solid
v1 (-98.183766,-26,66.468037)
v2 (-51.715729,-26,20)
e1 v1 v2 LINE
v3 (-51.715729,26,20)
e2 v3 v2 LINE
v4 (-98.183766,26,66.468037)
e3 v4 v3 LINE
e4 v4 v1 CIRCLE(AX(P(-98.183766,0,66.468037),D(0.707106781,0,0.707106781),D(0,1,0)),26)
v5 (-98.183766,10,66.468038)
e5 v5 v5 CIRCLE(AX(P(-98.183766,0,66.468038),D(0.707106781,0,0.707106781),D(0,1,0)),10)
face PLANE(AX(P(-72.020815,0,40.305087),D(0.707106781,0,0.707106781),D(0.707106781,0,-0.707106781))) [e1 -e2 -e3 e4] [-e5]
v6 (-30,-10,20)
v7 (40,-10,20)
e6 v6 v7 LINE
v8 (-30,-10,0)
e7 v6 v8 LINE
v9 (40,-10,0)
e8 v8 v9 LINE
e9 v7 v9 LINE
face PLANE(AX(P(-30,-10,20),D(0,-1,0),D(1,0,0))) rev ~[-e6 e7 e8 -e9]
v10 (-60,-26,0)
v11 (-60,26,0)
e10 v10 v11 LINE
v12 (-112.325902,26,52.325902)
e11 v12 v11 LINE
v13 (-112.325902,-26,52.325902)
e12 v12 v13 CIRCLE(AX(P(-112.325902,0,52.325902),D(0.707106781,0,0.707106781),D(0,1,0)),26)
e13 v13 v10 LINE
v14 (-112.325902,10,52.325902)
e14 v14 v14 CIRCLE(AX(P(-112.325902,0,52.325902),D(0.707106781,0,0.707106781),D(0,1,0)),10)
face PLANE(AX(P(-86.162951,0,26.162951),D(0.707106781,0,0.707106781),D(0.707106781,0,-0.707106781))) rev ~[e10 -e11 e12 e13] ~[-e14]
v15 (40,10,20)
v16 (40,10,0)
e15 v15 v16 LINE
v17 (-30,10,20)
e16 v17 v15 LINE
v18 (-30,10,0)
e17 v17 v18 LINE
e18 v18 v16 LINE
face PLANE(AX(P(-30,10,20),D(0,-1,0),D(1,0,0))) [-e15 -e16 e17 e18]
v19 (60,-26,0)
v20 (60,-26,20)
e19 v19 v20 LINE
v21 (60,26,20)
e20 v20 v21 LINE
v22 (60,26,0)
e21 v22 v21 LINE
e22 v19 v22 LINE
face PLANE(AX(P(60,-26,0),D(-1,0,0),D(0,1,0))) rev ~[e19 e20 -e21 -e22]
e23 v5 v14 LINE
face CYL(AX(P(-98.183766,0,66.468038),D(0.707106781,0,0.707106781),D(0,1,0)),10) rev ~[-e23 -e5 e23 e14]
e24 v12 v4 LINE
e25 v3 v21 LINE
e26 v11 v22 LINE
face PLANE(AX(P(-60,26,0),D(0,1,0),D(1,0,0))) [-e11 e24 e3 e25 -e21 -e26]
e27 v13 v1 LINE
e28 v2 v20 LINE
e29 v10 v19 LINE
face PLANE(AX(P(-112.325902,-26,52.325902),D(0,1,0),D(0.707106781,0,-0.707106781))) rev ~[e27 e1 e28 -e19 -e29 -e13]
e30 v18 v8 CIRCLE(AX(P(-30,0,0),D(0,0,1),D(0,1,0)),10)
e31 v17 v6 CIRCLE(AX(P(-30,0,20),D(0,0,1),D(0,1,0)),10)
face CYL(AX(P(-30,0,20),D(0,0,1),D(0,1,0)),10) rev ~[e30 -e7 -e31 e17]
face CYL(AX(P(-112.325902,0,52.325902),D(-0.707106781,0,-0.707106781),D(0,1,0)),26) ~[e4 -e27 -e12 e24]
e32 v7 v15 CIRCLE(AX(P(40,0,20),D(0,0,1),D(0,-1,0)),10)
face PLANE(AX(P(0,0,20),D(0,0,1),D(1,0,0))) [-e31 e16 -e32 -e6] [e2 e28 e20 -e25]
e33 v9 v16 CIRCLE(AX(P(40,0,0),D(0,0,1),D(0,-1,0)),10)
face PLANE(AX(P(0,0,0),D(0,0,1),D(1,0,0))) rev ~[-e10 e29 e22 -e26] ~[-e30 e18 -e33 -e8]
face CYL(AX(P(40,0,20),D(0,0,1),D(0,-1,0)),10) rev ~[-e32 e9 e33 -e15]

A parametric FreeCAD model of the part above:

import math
import FreeCAD as App
import Part
import Sketcher

V = App.Vector
Q = App.Units.Quantity

doc = App.newDocument("Part")
params = doc.addObject("Spreadsheet::Sheet", "Params")
for row, (alias, value) in enumerate([
    ("sketch1_radius", "26 mm"),
    ("sketch1_width", "74 mm"),
    ("pad1_length", "20 mm"),
    ("sketch2_width", "120 mm"),
    ("sketch2_height", "52 mm"),
    ("pad2_length", "20 mm"),
    ("sketch3_radius", "10 mm"),
    ("sketch3_width", "70 mm"),
    ("pocket1_length", "20 mm"),
    ("sketch4_diameter", "20 mm"),
    ("pocket2_length", "25 mm"),
], start=1):
    params.set(f"A{row}", alias)
    params.set(f"B{row}", "=" + value)
    params.setAlias(f"B{row}", alias)

body = doc.addObject("PartDesign::Body", "Body")

sketch1 = body.newObject("Sketcher::SketchObject", "Sketch")
sketch1.AttachmentSupport = (doc.getObject("XY_Plane"), [""])
sketch1.MapMode = "FlatFace"
sketch1.addGeometry([
    Part.LineSegment(V(-134, -26, 0), V(-60, -26, 0)),
    Part.LineSegment(V(-60, -26, 0), V(-60, 26, 0)),
    Part.LineSegment(V(-60, 26, 0), V(-134, 26, 0)),
    Part.ArcOfCircle(Part.Circle(V(-134, 0, 0), V(0, 0, 1), 26), math.radians(90), math.radians(270)),
], False)
sketch1.addConstraint([
    Sketcher.Constraint("Coincident", 0, 2, 1, 1),
    Sketcher.Constraint("Coincident", 1, 2, 2, 1),
    Sketcher.Constraint("Tangent", 2, 2, 3, 1),
    Sketcher.Constraint("Tangent", 3, 2, 0, 1),
    Sketcher.Constraint("Horizontal", 0),
    Sketcher.Constraint("Vertical", 1),
    Sketcher.Constraint("Horizontal", 2),
    Sketcher.Constraint("PointOnObject", 3, 3, -1),
    Sketcher.Constraint("Radius", 3, Q("26 mm")),
    Sketcher.Constraint("DistanceX", 0, 1, 0, 2, Q("74 mm")),
    Sketcher.Constraint("DistanceX", 3, 3, -1, 1, Q("134 mm")),
])
sketch1.setExpression("Constraints[8]", "Params.sketch1_radius")
sketch1.setExpression("Constraints[9]", "Params.sketch1_width")
pad1 = body.newObject("PartDesign::Pad", "Pad")
pad1.Profile = sketch1
pad1.setExpression("Length", "Params.pad1_length")
body2 = doc.addObject("PartDesign::Body", "Body001")
doc.recompute()

body.Placement = App.Placement(V(-17.573593, 0, -42.426407), App.Rotation(V(0, -1, 0), 315))
boolean = body2.newObject("PartDesign::Boolean", "Boolean")
boolean.Type = "Fuse"
boolean.addObjects([body])

sketch2 = body2.newObject("Sketcher::SketchObject", "Sketch001")
sketch2.AttachmentSupport = (doc.getObject("XY_Plane001"), [""])
sketch2.MapMode = "FlatFace"
sketch2.addGeometry([
    Part.LineSegment(V(-60, 26, 0), V(-60, -26, 0)),
    Part.LineSegment(V(-60, -26, 0), V(60, -26, 0)),
    Part.LineSegment(V(60, -26, 0), V(60, 26, 0)),
    Part.LineSegment(V(60, 26, 0), V(-60, 26, 0)),
], False)
sketch2.addConstraint([
    Sketcher.Constraint("Coincident", 0, 2, 1, 1),
    Sketcher.Constraint("Coincident", 1, 2, 2, 1),
    Sketcher.Constraint("Coincident", 2, 2, 3, 1),
    Sketcher.Constraint("Coincident", 3, 2, 0, 1),
    Sketcher.Constraint("Vertical", 0),
    Sketcher.Constraint("Horizontal", 1),
    Sketcher.Constraint("Vertical", 2),
    Sketcher.Constraint("Horizontal", 3),
    Sketcher.Constraint("Symmetric", 0, 2, 2, 2, -1, 1),
    Sketcher.Constraint("DistanceX", 1, 1, 1, 2, Q("120 mm")),
    Sketcher.Constraint("DistanceY", 0, 2, 0, 1, Q("52 mm")),
])
sketch2.setExpression("Constraints[9]", "Params.sketch2_width")
sketch2.setExpression("Constraints[10]", "Params.sketch2_height")
pad2 = body2.newObject("PartDesign::Pad", "Pad001")
pad2.Profile = sketch2
pad2.setExpression("Length", "Params.pad2_length")

sketch3 = body2.newObject("Sketcher::SketchObject", "Sketch002")
sketch3.AttachmentSupport = (doc.getObject("XY_Plane001"), [""])
sketch3.MapMode = "FlatFace"
sketch3.AttachmentOffset = App.Placement(V(0, 0, 20), App.Rotation())
sketch3.addGeometry([
    Part.LineSegment(V(-30, -10, 0), V(40, -10, 0)),
    Part.ArcOfCircle(Part.Circle(V(40, 0, 0), V(0, 0, 1), 10), math.radians(-90), math.radians(90)),
    Part.LineSegment(V(40, 10, 0), V(-30, 10, 0)),
    Part.ArcOfCircle(Part.Circle(V(-30, 0, 0), V(0, 0, 1), 10), math.radians(90), math.radians(270)),
], False)
sketch3.addConstraint([
    Sketcher.Constraint("Tangent", 0, 2, 1, 1),
    Sketcher.Constraint("Tangent", 1, 2, 2, 1),
    Sketcher.Constraint("Tangent", 2, 2, 3, 1),
    Sketcher.Constraint("Tangent", 3, 2, 0, 1),
    Sketcher.Constraint("Horizontal", 0),
    Sketcher.Constraint("Horizontal", 2),
    Sketcher.Constraint("PointOnObject", 1, 3, -1),
    Sketcher.Constraint("Radius", 1, Q("10 mm")),
    Sketcher.Constraint("DistanceX", 0, 1, 0, 2, Q("70 mm")),
    Sketcher.Constraint("DistanceX", -1, 1, 1, 3, Q("40 mm")),
])
sketch3.setExpression("Constraints[7]", "Params.sketch3_radius")
sketch3.setExpression("Constraints[8]", "Params.sketch3_width")
pocket1 = body2.newObject("PartDesign::Pocket", "Pocket")
pocket1.Profile = sketch3
pocket1.setExpression("Length", "Params.pocket1_length")

sketch4 = body2.newObject("Sketcher::SketchObject", "Sketch003")
sketch4.Placement = App.Placement(V(-15.857864, 0, -15.857864), App.Rotation(V(0, 1, 0), V(-0.707106781, 0, 0.707106781), V(0.707106781, 0, 0.707106781), "ZXY"))
sketch4.addGeometry(Part.Circle(V(0, 116.426407, 0), V(0, 0, 1), 10), False)
sketch4.addConstraint([
    Sketcher.Constraint("PointOnObject", 0, 3, -2),
    Sketcher.Constraint("Diameter", 0, Q("20 mm")),
    Sketcher.Constraint("DistanceY", -1, 1, 0, 3, Q("116.426407 mm")),
])
sketch4.setExpression("Constraints[1]", "Params.sketch4_diameter")
pocket2 = body2.newObject("PartDesign::Pocket", "Pocket001")
pocket2.Profile = sketch4
pocket2.setExpression("Length", "Params.pocket2_length")

doc.recompute()
